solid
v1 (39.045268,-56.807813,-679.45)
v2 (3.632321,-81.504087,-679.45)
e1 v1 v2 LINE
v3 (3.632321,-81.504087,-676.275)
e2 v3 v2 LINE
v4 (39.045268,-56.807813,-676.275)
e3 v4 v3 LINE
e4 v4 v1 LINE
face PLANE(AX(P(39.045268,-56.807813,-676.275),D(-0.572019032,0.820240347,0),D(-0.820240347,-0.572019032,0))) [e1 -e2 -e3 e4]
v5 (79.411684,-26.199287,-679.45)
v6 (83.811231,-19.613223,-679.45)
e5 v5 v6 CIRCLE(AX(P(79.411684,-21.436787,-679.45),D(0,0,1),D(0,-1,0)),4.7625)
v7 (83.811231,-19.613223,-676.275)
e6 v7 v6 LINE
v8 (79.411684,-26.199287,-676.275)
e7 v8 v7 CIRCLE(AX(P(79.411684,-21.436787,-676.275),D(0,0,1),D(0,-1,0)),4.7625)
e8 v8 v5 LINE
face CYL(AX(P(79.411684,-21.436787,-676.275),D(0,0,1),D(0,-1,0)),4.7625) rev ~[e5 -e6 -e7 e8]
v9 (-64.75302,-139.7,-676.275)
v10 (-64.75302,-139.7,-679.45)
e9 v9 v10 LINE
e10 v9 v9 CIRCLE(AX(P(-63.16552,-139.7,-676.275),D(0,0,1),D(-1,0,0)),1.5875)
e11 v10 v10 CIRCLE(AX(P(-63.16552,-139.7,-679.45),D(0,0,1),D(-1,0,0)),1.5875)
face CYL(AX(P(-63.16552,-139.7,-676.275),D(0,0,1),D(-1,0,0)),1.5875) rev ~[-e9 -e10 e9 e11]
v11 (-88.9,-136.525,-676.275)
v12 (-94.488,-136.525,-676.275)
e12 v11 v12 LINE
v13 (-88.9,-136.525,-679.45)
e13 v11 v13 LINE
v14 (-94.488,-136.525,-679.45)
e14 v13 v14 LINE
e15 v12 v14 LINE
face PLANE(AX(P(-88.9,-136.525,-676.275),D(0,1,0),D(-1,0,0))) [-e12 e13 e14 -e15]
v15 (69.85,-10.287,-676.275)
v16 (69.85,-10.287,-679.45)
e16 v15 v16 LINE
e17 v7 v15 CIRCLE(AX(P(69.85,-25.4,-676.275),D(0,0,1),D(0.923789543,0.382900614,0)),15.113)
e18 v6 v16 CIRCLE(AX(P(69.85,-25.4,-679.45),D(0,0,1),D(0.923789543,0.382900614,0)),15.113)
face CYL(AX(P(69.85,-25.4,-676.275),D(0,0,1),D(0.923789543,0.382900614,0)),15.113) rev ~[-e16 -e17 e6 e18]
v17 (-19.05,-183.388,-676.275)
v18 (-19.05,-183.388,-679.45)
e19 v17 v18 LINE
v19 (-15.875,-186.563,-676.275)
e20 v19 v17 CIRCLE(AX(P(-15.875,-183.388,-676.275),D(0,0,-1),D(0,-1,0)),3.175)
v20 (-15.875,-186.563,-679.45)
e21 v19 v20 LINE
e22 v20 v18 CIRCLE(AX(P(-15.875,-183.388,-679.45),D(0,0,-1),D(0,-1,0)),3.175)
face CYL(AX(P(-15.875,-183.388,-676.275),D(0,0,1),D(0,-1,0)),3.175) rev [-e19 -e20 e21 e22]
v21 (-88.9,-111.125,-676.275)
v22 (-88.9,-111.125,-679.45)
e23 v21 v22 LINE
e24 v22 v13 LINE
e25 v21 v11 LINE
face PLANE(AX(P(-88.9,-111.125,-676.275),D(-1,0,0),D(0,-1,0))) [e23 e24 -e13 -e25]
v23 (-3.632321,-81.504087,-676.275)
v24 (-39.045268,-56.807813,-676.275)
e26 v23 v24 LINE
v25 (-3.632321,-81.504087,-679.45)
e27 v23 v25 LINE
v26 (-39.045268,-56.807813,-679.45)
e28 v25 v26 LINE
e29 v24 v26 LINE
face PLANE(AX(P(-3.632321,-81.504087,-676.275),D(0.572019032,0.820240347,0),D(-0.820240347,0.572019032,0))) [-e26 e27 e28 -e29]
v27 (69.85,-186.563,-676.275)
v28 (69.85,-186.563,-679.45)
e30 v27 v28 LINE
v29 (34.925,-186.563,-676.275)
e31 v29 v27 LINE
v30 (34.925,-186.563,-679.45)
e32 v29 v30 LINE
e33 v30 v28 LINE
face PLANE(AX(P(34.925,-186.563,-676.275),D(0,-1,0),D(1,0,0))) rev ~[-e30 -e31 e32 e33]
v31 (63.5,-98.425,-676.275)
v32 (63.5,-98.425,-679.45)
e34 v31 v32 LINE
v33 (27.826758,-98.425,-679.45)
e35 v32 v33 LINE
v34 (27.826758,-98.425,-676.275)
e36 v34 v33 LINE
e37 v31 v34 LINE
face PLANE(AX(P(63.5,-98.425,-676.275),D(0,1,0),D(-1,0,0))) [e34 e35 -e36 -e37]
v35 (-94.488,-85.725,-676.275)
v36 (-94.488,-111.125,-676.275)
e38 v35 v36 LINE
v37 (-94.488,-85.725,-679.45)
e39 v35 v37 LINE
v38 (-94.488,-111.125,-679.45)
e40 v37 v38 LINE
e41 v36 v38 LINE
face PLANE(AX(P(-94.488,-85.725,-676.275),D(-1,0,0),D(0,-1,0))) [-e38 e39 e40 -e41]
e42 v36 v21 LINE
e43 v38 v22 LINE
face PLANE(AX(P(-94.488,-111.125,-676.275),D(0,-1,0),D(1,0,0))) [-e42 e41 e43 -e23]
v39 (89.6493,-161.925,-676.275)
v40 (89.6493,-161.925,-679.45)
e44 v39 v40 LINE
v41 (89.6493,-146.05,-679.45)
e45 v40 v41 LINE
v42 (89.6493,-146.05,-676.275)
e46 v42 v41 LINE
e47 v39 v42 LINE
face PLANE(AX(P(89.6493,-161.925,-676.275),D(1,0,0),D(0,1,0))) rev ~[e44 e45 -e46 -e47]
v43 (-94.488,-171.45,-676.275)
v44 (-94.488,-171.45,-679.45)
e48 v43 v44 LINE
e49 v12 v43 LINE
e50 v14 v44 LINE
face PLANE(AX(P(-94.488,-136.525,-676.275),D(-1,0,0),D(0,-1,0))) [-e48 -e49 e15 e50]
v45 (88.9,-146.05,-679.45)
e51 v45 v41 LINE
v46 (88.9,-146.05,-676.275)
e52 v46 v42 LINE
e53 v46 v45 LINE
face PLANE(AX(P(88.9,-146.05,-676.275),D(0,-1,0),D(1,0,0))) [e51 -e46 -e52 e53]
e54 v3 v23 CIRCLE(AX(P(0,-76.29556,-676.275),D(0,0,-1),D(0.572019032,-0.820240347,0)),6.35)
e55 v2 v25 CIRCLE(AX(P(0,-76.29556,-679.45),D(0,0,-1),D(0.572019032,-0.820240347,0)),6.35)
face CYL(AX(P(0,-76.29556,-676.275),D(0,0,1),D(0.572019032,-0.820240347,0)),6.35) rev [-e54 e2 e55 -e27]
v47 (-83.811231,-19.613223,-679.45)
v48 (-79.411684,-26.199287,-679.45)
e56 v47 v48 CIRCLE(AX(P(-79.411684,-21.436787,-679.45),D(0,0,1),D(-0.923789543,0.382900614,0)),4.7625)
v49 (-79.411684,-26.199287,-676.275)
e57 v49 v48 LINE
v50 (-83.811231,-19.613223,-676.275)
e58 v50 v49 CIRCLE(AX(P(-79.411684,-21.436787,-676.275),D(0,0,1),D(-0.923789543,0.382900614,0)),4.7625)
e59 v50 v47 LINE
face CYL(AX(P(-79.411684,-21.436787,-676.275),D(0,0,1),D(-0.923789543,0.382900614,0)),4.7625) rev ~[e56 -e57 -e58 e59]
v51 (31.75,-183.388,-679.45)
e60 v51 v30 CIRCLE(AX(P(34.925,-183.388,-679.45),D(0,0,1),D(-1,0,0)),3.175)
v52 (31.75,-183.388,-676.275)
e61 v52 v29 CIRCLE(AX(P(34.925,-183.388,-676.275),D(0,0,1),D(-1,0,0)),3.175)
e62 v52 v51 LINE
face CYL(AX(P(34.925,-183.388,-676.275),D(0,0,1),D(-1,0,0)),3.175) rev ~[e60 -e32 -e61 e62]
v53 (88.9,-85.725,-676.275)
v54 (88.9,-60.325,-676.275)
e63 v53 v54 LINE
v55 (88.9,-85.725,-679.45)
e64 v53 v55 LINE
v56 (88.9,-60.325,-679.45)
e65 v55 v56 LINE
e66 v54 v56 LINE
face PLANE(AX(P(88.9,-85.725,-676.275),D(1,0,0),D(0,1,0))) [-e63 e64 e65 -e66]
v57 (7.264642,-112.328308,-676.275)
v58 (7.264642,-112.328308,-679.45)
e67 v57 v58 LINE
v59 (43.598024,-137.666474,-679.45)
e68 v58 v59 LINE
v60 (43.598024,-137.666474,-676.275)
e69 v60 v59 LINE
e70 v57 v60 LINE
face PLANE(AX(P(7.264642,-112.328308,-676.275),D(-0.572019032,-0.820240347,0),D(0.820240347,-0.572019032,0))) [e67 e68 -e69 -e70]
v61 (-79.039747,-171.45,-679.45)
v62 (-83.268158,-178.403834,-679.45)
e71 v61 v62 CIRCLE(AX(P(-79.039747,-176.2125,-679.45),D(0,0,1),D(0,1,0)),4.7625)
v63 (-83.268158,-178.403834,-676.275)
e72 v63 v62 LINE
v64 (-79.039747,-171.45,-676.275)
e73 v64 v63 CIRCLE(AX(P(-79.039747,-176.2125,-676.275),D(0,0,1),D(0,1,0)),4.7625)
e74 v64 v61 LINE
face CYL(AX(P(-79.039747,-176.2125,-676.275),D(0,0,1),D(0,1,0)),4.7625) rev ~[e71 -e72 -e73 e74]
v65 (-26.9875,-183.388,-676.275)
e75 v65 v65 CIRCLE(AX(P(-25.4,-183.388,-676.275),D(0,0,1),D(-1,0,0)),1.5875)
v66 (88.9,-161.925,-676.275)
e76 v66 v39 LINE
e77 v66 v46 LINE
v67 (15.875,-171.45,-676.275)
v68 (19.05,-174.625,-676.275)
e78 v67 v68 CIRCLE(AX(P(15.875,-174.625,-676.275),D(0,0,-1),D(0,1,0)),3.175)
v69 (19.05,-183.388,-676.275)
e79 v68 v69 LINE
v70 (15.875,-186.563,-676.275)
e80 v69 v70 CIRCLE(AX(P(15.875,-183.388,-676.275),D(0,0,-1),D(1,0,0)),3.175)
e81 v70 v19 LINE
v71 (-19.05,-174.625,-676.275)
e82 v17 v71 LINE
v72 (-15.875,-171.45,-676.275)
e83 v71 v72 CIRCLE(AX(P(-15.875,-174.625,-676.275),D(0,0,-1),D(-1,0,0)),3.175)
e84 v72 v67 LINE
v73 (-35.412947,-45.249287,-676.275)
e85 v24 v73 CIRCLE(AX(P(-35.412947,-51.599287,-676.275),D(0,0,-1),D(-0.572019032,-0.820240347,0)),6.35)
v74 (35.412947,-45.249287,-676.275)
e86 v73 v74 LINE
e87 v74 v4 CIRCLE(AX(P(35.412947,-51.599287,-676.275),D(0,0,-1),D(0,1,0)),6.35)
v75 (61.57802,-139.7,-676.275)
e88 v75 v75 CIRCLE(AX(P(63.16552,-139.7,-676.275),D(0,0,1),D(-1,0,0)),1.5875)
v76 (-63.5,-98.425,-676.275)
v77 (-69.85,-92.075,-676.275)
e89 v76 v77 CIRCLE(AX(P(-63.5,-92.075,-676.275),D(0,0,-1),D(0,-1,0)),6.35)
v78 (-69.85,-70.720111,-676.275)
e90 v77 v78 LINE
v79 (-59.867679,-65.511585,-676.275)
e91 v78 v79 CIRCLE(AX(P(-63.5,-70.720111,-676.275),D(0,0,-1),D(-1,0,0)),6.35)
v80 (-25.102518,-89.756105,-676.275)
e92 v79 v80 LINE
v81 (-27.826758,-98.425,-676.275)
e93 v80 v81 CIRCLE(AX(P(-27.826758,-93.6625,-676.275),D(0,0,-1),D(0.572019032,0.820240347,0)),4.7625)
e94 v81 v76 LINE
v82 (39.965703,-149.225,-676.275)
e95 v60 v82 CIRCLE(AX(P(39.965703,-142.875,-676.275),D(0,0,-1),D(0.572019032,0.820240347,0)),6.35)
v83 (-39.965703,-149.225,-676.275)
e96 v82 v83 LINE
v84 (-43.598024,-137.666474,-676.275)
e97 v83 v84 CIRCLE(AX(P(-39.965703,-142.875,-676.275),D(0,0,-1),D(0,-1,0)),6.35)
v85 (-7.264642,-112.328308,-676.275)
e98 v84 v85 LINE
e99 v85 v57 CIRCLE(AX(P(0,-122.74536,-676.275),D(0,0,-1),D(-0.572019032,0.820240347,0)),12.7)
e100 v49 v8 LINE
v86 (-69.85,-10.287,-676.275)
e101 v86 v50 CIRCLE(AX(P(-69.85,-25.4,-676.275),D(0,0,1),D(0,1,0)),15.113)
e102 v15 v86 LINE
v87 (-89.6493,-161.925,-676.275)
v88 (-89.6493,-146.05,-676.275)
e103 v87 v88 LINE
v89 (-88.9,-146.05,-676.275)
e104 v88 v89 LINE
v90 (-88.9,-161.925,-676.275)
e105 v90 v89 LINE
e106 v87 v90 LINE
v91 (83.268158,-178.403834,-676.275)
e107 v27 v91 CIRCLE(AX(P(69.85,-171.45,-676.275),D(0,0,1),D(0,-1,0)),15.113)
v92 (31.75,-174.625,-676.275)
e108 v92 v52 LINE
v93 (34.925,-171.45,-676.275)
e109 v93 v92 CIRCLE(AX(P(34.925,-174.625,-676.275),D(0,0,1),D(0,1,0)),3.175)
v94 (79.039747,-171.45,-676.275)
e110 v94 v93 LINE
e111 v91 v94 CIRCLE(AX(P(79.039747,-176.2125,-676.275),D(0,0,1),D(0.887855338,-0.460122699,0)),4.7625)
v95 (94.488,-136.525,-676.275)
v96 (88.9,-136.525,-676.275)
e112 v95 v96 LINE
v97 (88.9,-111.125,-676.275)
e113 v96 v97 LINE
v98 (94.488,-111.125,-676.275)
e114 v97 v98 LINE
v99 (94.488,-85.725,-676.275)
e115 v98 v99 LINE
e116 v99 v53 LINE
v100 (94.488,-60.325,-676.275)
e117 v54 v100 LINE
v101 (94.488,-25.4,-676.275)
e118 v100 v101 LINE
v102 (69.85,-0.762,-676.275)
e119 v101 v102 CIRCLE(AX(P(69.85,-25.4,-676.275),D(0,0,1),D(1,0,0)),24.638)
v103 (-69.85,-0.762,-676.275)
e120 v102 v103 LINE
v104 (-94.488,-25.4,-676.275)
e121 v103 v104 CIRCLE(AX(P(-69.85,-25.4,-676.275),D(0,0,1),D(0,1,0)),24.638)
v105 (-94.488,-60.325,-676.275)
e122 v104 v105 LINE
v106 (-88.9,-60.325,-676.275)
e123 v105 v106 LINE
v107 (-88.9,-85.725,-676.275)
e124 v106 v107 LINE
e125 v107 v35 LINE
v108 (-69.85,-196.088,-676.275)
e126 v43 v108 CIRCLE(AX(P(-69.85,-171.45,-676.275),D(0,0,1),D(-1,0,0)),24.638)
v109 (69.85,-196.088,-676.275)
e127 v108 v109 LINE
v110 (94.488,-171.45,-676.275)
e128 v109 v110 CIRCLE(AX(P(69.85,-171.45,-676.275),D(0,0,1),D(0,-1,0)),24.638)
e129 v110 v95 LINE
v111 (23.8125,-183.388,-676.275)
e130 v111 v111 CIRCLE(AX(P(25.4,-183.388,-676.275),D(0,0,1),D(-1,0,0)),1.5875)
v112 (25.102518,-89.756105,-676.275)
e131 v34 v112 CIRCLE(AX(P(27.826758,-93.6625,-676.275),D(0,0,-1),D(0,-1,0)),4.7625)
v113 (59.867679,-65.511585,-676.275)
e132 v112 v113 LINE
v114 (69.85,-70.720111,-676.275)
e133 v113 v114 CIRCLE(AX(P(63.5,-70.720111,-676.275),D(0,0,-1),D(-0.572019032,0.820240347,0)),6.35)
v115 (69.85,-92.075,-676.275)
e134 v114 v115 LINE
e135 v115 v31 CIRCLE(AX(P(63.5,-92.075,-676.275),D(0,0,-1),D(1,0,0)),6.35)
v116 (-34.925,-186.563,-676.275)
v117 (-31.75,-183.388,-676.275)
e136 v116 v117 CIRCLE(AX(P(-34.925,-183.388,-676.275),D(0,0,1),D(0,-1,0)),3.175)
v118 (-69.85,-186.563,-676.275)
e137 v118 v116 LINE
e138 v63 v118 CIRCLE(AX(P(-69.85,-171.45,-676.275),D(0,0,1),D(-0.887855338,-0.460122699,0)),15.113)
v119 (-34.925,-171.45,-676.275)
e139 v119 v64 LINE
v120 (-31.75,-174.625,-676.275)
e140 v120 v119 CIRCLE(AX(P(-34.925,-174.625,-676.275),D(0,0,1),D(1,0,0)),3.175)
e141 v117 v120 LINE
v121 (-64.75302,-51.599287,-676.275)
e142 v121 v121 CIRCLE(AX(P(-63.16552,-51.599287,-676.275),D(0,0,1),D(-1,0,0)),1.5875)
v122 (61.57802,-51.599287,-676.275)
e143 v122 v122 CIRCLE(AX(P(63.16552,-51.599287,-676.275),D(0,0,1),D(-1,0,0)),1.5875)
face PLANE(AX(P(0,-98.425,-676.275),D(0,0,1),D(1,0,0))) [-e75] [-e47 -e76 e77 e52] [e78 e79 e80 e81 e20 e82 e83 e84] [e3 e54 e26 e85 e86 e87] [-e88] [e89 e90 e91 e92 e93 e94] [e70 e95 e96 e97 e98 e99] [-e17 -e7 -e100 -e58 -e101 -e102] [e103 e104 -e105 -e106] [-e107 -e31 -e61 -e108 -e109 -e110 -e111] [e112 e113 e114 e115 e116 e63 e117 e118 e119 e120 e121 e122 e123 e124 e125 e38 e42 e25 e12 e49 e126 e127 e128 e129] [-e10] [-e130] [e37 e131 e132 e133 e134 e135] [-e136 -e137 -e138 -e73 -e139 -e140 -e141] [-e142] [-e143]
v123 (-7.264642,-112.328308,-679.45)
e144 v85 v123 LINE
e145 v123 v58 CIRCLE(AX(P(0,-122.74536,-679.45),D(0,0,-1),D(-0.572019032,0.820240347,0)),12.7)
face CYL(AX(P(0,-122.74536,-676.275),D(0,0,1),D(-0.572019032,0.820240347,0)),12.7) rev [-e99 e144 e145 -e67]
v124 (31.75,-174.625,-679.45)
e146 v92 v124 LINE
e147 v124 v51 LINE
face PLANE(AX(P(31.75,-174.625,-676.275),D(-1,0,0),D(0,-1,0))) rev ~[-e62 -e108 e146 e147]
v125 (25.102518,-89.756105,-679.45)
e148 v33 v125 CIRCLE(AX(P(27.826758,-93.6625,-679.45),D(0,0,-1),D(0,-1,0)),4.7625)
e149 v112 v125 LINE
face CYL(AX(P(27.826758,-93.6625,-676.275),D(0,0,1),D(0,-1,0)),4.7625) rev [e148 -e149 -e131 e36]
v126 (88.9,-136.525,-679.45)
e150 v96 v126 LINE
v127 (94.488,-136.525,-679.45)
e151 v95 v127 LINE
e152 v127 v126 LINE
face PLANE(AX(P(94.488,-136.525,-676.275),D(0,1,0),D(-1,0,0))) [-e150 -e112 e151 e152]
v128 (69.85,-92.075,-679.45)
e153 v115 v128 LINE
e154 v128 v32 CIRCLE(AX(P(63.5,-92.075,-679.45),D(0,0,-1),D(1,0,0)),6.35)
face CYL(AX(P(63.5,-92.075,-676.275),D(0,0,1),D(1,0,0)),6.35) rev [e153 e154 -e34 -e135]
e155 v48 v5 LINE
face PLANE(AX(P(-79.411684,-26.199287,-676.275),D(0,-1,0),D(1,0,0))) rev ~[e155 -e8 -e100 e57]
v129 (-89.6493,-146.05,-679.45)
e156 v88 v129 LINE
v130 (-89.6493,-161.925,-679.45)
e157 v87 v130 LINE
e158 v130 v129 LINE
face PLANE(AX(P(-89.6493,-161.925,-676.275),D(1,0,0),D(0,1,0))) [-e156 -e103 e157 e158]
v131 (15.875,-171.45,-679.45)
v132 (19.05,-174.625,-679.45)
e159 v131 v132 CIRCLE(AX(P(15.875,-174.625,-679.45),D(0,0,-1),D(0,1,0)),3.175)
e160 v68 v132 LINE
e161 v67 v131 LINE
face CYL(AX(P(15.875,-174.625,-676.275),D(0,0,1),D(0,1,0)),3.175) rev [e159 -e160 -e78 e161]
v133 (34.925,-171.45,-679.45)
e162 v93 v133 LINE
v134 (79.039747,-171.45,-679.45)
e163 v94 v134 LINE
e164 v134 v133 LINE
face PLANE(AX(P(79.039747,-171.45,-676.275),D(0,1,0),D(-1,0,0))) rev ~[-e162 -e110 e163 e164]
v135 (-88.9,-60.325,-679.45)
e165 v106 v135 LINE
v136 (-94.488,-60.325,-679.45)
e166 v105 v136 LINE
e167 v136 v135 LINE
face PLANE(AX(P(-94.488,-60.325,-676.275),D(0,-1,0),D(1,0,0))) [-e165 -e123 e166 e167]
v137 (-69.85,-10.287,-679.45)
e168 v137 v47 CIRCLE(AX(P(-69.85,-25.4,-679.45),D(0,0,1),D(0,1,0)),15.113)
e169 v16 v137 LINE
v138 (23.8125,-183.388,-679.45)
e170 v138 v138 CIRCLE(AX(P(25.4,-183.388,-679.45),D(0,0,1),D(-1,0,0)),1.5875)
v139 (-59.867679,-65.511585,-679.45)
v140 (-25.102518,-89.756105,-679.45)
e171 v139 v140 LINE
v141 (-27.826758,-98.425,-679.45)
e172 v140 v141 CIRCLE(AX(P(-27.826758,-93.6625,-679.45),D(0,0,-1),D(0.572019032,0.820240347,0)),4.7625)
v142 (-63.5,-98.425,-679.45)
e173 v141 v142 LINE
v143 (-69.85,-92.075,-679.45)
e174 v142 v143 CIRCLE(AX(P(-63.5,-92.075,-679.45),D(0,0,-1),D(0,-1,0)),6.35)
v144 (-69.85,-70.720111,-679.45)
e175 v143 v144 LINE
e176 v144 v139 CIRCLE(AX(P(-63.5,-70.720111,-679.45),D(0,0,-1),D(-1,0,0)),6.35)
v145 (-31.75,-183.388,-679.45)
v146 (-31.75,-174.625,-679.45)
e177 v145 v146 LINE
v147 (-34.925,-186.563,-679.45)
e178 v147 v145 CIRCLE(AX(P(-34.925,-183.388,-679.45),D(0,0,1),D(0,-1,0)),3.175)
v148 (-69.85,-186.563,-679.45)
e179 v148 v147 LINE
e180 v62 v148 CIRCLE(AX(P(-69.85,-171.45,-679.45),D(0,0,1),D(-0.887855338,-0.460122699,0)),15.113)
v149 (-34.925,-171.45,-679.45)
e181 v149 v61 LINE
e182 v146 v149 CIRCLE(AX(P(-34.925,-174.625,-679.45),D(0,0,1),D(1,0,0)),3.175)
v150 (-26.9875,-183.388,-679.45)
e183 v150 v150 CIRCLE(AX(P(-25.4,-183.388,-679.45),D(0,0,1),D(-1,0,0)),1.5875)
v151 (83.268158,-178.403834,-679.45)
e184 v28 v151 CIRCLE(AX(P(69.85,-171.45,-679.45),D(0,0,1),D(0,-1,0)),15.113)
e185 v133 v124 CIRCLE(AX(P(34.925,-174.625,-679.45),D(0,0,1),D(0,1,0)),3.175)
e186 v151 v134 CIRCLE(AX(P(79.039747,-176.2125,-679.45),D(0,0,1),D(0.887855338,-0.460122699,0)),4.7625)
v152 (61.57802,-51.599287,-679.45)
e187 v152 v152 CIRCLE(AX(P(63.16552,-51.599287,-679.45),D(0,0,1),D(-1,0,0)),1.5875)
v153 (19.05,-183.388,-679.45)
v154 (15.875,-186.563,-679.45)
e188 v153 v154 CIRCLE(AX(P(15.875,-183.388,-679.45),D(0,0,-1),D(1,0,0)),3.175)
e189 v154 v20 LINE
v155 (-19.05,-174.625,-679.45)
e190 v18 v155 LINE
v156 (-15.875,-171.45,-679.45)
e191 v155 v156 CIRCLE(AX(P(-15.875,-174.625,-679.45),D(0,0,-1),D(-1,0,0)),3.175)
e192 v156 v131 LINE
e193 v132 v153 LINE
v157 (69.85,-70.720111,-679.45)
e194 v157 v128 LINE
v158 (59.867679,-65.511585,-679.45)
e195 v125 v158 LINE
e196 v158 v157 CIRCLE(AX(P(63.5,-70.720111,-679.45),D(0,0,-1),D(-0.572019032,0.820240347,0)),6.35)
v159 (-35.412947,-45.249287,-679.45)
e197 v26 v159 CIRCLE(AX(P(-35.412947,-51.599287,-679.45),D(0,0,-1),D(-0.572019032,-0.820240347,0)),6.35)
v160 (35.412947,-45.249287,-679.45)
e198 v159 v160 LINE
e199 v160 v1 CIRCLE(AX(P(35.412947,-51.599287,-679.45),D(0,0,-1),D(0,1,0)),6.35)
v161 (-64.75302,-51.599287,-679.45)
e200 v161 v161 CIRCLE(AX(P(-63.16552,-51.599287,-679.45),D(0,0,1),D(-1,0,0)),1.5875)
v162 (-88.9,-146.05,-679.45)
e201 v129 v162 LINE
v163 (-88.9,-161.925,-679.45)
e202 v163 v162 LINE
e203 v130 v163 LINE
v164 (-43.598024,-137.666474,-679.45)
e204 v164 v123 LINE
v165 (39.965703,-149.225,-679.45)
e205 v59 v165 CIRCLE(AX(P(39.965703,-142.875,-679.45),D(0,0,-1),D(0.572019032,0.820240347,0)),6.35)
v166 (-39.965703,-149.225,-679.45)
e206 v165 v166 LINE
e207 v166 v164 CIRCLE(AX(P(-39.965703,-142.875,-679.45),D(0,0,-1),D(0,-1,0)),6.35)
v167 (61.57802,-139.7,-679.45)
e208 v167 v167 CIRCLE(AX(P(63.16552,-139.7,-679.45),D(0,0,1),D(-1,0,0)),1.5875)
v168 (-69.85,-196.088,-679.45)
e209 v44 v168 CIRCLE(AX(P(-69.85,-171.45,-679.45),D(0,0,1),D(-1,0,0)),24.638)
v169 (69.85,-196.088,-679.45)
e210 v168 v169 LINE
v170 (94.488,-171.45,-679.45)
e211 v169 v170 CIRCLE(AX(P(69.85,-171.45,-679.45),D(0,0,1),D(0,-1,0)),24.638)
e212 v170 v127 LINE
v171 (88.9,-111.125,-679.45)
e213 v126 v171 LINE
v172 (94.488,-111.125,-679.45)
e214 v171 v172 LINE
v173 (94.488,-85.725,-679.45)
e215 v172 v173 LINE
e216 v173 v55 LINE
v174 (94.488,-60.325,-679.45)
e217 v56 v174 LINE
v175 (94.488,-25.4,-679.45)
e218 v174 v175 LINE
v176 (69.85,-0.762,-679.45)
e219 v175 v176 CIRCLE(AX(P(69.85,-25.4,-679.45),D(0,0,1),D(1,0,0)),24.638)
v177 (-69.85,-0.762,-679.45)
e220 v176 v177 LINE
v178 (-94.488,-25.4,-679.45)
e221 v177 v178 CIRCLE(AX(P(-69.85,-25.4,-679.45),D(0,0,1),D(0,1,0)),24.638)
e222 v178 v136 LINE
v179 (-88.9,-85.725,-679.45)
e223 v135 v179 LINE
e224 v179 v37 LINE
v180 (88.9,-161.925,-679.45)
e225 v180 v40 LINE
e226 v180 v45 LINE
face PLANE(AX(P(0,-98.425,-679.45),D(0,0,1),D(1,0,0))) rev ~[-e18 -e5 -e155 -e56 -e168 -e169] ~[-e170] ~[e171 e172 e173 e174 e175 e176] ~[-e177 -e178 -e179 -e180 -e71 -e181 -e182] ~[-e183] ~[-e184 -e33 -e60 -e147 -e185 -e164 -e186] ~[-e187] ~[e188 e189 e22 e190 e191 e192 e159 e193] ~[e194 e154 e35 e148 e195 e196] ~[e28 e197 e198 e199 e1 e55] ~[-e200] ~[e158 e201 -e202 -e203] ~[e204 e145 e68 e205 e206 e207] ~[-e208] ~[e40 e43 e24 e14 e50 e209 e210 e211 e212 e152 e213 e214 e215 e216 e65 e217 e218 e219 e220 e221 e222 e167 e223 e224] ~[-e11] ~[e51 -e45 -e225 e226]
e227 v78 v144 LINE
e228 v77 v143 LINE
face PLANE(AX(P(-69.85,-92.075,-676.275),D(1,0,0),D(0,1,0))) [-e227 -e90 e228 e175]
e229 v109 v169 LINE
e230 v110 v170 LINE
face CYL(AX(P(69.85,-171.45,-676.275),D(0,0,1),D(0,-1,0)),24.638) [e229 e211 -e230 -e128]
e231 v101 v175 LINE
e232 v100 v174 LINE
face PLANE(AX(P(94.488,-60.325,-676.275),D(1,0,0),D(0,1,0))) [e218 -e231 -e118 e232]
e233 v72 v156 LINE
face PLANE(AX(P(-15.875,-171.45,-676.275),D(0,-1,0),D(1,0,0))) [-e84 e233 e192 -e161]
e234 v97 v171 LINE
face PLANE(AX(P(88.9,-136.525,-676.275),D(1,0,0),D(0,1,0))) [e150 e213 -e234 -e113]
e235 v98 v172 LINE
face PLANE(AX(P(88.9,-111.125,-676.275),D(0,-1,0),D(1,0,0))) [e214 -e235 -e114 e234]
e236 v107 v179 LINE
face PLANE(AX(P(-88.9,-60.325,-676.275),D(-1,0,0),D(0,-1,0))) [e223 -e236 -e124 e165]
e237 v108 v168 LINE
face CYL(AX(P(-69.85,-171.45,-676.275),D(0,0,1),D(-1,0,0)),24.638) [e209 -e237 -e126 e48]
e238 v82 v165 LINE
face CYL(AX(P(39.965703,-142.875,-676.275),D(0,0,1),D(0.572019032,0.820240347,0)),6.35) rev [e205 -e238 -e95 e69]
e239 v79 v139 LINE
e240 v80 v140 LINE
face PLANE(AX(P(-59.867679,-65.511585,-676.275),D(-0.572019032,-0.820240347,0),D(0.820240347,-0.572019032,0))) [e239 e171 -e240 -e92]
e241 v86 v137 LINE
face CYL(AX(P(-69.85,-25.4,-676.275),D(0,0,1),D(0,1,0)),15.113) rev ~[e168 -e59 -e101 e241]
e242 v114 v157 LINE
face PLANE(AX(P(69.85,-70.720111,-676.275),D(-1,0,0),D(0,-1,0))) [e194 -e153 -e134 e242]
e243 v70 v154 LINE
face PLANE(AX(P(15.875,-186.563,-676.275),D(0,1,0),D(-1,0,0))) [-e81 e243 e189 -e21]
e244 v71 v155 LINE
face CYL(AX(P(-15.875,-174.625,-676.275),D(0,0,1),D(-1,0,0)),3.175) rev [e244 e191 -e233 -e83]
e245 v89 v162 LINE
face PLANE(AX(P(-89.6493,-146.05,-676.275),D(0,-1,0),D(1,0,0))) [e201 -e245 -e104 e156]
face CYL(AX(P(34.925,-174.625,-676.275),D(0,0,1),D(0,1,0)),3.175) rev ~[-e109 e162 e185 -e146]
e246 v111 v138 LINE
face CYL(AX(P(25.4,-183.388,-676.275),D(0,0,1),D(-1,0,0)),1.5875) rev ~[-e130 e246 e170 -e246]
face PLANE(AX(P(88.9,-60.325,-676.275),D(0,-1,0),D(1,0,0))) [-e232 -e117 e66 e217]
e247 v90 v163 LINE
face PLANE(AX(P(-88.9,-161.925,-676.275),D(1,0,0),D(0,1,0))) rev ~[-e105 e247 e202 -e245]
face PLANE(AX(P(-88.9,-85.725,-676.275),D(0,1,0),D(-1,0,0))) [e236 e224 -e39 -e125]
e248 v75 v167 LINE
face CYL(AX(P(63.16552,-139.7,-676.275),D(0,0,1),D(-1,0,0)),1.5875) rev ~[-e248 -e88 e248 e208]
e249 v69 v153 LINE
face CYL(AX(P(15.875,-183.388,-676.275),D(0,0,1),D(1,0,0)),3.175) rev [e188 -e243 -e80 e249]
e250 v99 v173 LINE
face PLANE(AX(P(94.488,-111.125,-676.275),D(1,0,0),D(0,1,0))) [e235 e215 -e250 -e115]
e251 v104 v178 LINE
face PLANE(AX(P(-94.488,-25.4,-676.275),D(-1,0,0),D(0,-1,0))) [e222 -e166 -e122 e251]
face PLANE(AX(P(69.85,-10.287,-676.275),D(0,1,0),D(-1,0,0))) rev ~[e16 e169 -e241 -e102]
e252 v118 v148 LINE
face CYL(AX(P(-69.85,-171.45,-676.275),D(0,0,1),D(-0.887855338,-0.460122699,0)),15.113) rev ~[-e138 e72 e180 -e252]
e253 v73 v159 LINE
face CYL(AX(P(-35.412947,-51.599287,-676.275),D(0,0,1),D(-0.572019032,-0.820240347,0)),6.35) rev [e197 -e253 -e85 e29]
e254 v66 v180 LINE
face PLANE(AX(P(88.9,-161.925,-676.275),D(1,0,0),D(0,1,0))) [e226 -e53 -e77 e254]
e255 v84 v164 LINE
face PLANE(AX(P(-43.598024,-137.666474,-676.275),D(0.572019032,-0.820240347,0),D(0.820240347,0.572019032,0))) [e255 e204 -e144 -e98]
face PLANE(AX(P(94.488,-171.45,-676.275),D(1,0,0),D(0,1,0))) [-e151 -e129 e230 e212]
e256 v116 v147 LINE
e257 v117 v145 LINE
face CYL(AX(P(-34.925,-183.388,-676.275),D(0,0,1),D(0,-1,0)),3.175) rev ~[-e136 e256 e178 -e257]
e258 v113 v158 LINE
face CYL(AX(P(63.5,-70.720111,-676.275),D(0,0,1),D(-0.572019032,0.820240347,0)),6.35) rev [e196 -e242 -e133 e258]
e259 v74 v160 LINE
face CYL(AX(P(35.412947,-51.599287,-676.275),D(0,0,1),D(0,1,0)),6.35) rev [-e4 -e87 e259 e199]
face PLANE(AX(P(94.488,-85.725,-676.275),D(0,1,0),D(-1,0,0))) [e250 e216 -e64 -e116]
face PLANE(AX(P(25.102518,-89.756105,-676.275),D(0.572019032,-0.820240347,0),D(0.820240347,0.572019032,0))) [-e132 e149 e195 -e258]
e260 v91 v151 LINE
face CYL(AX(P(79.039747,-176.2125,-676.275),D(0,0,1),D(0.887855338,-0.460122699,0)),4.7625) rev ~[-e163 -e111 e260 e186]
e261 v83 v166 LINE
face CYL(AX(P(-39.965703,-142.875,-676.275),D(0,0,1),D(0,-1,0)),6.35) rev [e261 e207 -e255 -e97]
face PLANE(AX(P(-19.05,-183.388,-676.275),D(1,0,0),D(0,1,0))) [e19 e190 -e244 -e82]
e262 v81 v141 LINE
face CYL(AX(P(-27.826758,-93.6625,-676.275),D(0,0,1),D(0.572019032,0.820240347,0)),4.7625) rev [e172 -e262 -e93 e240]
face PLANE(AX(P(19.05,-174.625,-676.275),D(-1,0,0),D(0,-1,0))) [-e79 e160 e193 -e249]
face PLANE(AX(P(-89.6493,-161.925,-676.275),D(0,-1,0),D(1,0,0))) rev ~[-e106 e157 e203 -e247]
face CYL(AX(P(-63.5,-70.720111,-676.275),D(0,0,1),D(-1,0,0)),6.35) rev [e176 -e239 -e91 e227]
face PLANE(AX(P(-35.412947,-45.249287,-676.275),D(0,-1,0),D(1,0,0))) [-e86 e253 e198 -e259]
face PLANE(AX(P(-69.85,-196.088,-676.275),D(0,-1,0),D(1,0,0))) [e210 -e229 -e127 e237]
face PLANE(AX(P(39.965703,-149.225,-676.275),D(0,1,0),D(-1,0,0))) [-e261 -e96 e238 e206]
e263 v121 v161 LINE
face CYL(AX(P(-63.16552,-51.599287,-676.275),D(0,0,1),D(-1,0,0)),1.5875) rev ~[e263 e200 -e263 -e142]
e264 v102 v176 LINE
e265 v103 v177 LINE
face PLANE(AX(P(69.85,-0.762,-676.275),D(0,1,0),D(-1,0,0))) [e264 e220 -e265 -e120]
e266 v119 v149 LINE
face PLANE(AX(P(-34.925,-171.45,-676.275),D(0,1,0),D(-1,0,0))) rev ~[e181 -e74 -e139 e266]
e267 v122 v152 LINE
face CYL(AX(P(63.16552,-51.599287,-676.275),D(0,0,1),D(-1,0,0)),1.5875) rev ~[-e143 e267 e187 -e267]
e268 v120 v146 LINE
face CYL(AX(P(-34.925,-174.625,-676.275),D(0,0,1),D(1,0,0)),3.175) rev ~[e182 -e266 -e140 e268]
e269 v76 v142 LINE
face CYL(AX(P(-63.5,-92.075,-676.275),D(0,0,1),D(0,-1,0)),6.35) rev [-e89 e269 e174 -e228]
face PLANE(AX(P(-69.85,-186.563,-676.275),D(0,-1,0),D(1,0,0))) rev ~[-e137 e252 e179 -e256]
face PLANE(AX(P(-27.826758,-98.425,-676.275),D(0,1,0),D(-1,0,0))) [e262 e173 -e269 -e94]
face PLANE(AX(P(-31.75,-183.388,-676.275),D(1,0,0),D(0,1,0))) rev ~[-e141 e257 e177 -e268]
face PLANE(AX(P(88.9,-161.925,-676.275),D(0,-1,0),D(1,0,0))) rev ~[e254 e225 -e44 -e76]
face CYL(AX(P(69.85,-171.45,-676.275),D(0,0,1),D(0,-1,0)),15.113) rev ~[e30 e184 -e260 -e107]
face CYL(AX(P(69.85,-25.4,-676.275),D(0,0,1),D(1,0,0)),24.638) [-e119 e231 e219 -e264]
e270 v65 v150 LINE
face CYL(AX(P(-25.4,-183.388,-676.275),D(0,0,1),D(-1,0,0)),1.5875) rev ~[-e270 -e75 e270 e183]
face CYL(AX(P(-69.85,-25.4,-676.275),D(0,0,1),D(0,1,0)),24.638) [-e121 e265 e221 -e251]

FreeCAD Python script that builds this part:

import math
import FreeCAD as App
import Part
import Sketcher
from FreeCAD import Vector
Q = App.Units.Quantity


def add_polygon(sketch, points):
    """Adds a closed chain of lines whose ends are joined by coincident constraints."""
    first, n = sketch.GeometryCount, len(points)
    for a, b in zip(points, points[1:] + points[:1]):
        sketch.addGeometry(Part.LineSegment(App.Vector(*a, 0), App.Vector(*b, 0)), False)
    for i in range(n):
        sketch.addConstraint(Sketcher.Constraint("Coincident", first + i, 2, first + (i + 1) % n, 1))

doc = App.newDocument("Part")
body = doc.addObject("PartDesign::Body", "Body")

# Sketch on XY plane
sketch1 = body.newObject("Sketcher::SketchObject", "Sketch")
sketch1.AttachmentSupport = (doc.getObject("XY_Plane"), [""])
sketch1.MapMode = "FlatFace"
sketch1.AttachmentOffset = App.Placement(Vector(0, 0, -26.625 * 25.4), App.Rotation())
sketch1.addGeometry(Part.LineSegment(Vector(94.5, -171.4, 0), Vector(94.5, -136.5, 0)), False)  # 0
sketch1.addGeometry(Part.LineSegment(Vector(94.5, -136.5, 0), Vector(88.9, -136.5, 0)), False)  # 1
sketch1.addGeometry(Part.LineSegment(Vector(88.9, -136.5, 0), Vector(88.9, -111.1, 0)), False)  # 2
sketch1.addGeometry(Part.LineSegment(Vector(88.9, -111.1, 0), Vector(94.5, -111.1, 0)), False)  # 3
sketch1.addGeometry(Part.LineSegment(Vector(94.5, -111.1, 0), Vector(94.5, -85.7, 0)), False)  # 4
sketch1.addGeometry(Part.LineSegment(Vector(94.5, -85.7, 0), Vector(88.9, -85.7, 0)), False)  # 5
sketch1.addGeometry(Part.LineSegment(Vector(88.9, -85.7, 0), Vector(88.9, -60.3, 0)), False)  # 6
sketch1.addGeometry(Part.LineSegment(Vector(88.9, -60.3, 0), Vector(94.5, -60.3, 0)), False)  # 7
sketch1.addGeometry(Part.LineSegment(Vector(94.5, -60.3, 0), Vector(94.5, -25.4, 0)), False)  # 8
sketch1.addGeometry(Part.ArcOfCircle(Part.Circle(Vector(69.8, -25.4, 0), Vector(0, 0, 1), 24.6), math.radians(0), math.radians(90)), False)  # 9
sketch1.addGeometry(Part.LineSegment(Vector(69.8, -0.8, 0), Vector(-69.8, -0.8, 0)), False)  # 10
sketch1.addGeometry(Part.ArcOfCircle(Part.Circle(Vector(-69.8, -25.4, 0), Vector(0, 0, 1), 24.6), math.radians(90), math.radians(180)), False)  # 11
sketch1.addGeometry(Part.LineSegment(Vector(-94.5, -25.4, 0), Vector(-94.5, -60.3, 0)), False)  # 12
sketch1.addGeometry(Part.LineSegment(Vector(-94.5, -60.3, 0), Vector(-88.9, -60.3, 0)), False)  # 13
sketch1.addGeometry(Part.LineSegment(Vector(-88.9, -60.3, 0), Vector(-88.9, -85.7, 0)), False)  # 14
sketch1.addGeometry(Part.LineSegment(Vector(-88.9, -85.7, 0), Vector(-94.5, -85.7, 0)), False)  # 15
sketch1.addGeometry(Part.LineSegment(Vector(-94.5, -85.7, 0), Vector(-94.5, -111.1, 0)), False)  # 16
sketch1.addGeometry(Part.LineSegment(Vector(-94.5, -111.1, 0), Vector(-88.9, -111.1, 0)), False)  # 17
sketch1.addGeometry(Part.LineSegment(Vector(-88.9, -111.1, 0), Vector(-88.9, -136.5, 0)), False)  # 18
sketch1.addGeometry(Part.LineSegment(Vector(-88.9, -136.5, 0), Vector(-94.5, -136.5, 0)), False)  # 19
sketch1.addGeometry(Part.LineSegment(Vector(-94.5, -136.5, 0), Vector(-94.5, -171.4, 0)), False)  # 20
sketch1.addGeometry(Part.ArcOfCircle(Part.Circle(Vector(-69.8, -171.4, 0), Vector(0, 0, 1), 24.6), math.radians(180), math.radians(270)), False)  # 21
sketch1.addGeometry(Part.LineSegment(Vector(-69.8, -196.1, 0), Vector(69.8, -196.1, 0)), False)  # 22
sketch1.addGeometry(Part.ArcOfCircle(Part.Circle(Vector(69.8, -171.4, 0), Vector(0, 0, 1), 24.6), math.radians(-90), math.radians(0)), False)  # 23
sketch1.addGeometry(Part.LineSegment(Vector(-34.9, -186.6, 0), Vector(-69.8, -186.6, 0)), False)  # 24
sketch1.addGeometry(Part.ArcOfCircle(Part.Circle(Vector(-69.8, -171.4, 0), Vector(0, 0, 1), 15.1), math.radians(-153), math.radians(-90)), False)  # 25
sketch1.addGeometry(Part.ArcOfCircle(Part.Circle(Vector(-79, -176.2, 0), Vector(0, 0, 1), 4.8), math.radians(90), math.radians(207)), False)  # 26
sketch1.addGeometry(Part.LineSegment(Vector(-79, -171.4, 0), Vector(-34.9, -171.4, 0)), False)  # 27
sketch1.addGeometry(Part.ArcOfCircle(Part.Circle(Vector(-34.9, -174.6, 0), Vector(0, 0, 1), 3.2), math.radians(0), math.radians(90)), False)  # 28
sketch1.addGeometry(Part.LineSegment(Vector(-31.8, -174.6, 0), Vector(-31.8, -183.4, 0)), False)  # 29
sketch1.addGeometry(Part.ArcOfCircle(Part.Circle(Vector(-34.9, -183.4, 0), Vector(0, 0, 1), 3.2), math.radians(-90), math.radians(0)), False)  # 30
add_polygon(sketch1, [(-88.9, -161.9), (-89.6, -161.9), (-89.6, -146.1), (-88.9, -146.1)])  # lines 31-34
sketch1.addGeometry(Part.Circle(Vector(-25.4, -183.4, 0), Vector(0, 0, 1), 1.6), False)  # 35
sketch1.addGeometry(Part.Circle(Vector(-63.2, -139.7, 0), Vector(0, 0, 1), 1.6), False)  # 36
sketch1.addGeometry(Part.ArcOfCircle(Part.Circle(Vector(-15.9, -183.4, 0), Vector(0, 0, 1), 3.2), math.radians(-180), math.radians(-90)), False)  # 37
sketch1.addGeometry(Part.LineSegment(Vector(-19.1, -183.4, 0), Vector(-19.1, -174.6, 0)), False)  # 38
sketch1.addGeometry(Part.ArcOfCircle(Part.Circle(Vector(-15.9, -174.6, 0), Vector(0, 0, 1), 3.2), math.radians(90), math.radians(180)), False)  # 39
sketch1.addGeometry(Part.LineSegment(Vector(-15.9, -171.4, 0), Vector(15.9, -171.4, 0)), False)  # 40
sketch1.addGeometry(Part.ArcOfCircle(Part.Circle(Vector(15.9, -174.6, 0), Vector(0, 0, 1), 3.2), math.radians(0), math.radians(90)), False)  # 41
sketch1.addGeometry(Part.LineSegment(Vector(19.1, -174.6, 0), Vector(19.1, -183.4, 0)), False)  # 42
sketch1.addGeometry(Part.ArcOfCircle(Part.Circle(Vector(15.9, -183.4, 0), Vector(0, 0, 1), 3.2), math.radians(-90), math.radians(0)), False)  # 43
sketch1.addGeometry(Part.LineSegment(Vector(15.9, -186.6, 0), Vector(-15.9, -186.6, 0)), False)  # 44
sketch1.addGeometry(Part.Circle(Vector(25.4, -183.4, 0), Vector(0, 0, 1), 1.6), False)  # 45
sketch1.addGeometry(Part.LineSegment(Vector(31.8, -183.4, 0), Vector(31.8, -174.6, 0)), False)  # 46
sketch1.addGeometry(Part.ArcOfCircle(Part.Circle(Vector(34.9, -174.6, 0), Vector(0, 0, 1), 3.2), math.radians(90), math.radians(180)), False)  # 47
sketch1.addGeometry(Part.LineSegment(Vector(34.9, -171.4, 0), Vector(79, -171.4, 0)), False)  # 48
sketch1.addGeometry(Part.ArcOfCircle(Part.Circle(Vector(79, -176.2, 0), Vector(0, 0, 1), 4.8), math.radians(-27), math.radians(90)), False)  # 49
sketch1.addGeometry(Part.ArcOfCircle(Part.Circle(Vector(69.8, -171.4, 0), Vector(0, 0, 1), 15.1), math.radians(-90), math.radians(-27)), False)  # 50
sketch1.addGeometry(Part.LineSegment(Vector(69.8, -186.6, 0), Vector(34.9, -186.6, 0)), False)  # 51
sketch1.addGeometry(Part.ArcOfCircle(Part.Circle(Vector(34.9, -183.4, 0), Vector(0, 0, 1), 3.2), math.radians(-180), math.radians(-90)), False)  # 52
add_polygon(sketch1, [(89.6, -161.9), (88.9, -161.9), (88.9, -146.1), (89.6, -146.1)])  # lines 53-56
sketch1.addGeometry(Part.ArcOfCircle(Part.Circle(Vector(0, -122.7, 0), Vector(0, 0, 1), 12.7), math.radians(55), math.radians(125)), False)  # 57
sketch1.addGeometry(Part.LineSegment(Vector(7.3, -112.3, 0), Vector(43.6, -137.7, 0)), False)  # 58
sketch1.addGeometry(Part.ArcOfCircle(Part.Circle(Vector(40, -142.9, 0), Vector(0, 0, 1), 6.3), math.radians(-90), math.radians(55)), False)  # 59
sketch1.addGeometry(Part.LineSegment(Vector(40, -149.2, 0), Vector(-40, -149.2, 0)), False)  # 60
sketch1.addGeometry(Part.ArcOfCircle(Part.Circle(Vector(-40, -142.9, 0), Vector(0, 0, 1), 6.3), math.radians(125), math.radians(270)), False)  # 61
sketch1.addGeometry(Part.LineSegment(Vector(-43.6, -137.7, 0), Vector(-7.3, -112.3, 0)), False)  # 62
sketch1.addGeometry(Part.Circle(Vector(63.2, -139.7, 0), Vector(0, 0, 1), 1.6), False)  # 63
sketch1.addGeometry(Part.ArcOfCircle(Part.Circle(Vector(-63.5, -70.7, 0), Vector(0, 0, 1), 6.3), math.radians(55), math.radians(180)), False)  # 64
sketch1.addGeometry(Part.LineSegment(Vector(-59.9, -65.5, 0), Vector(-25.1, -89.8, 0)), False)  # 65
sketch1.addGeometry(Part.ArcOfCircle(Part.Circle(Vector(-27.8, -93.7, 0), Vector(0, 0, 1), 4.8), math.radians(-90), math.radians(55)), False)  # 66
sketch1.addGeometry(Part.LineSegment(Vector(-27.8, -98.4, 0), Vector(-63.5, -98.4, 0)), False)  # 67
sketch1.addGeometry(Part.ArcOfCircle(Part.Circle(Vector(-63.5, -92.1, 0), Vector(0, 0, 1), 6.3), math.radians(180), math.radians(270)), False)  # 68
sketch1.addGeometry(Part.LineSegment(Vector(-69.8, -92.1, 0), Vector(-69.8, -70.7, 0)), False)  # 69
sketch1.addGeometry(Part.Circle(Vector(-63.2, -51.6, 0), Vector(0, 0, 1), 1.6), False)  # 70
sketch1.addGeometry(Part.ArcOfCircle(Part.Circle(Vector(35.4, -51.6, 0), Vector(0, 0, 1), 6.3), math.radians(-55), math.radians(90)), False)  # 71
sketch1.addGeometry(Part.LineSegment(Vector(39, -56.8, 0), Vector(3.6, -81.5, 0)), False)  # 72
sketch1.addGeometry(Part.ArcOfCircle(Part.Circle(Vector(0, -76.3, 0), Vector(0, 0, 1), 6.4), math.radians(-125), math.radians(-55)), False)  # 73
sketch1.addGeometry(Part.LineSegment(Vector(-3.6, -81.5, 0), Vector(-39, -56.8, 0)), False)  # 74
sketch1.addGeometry(Part.ArcOfCircle(Part.Circle(Vector(-35.4, -51.6, 0), Vector(0, 0, 1), 6.3), math.radians(90), math.radians(235)), False)  # 75
sketch1.addGeometry(Part.LineSegment(Vector(-35.4, -45.2, 0), Vector(35.4, -45.2, 0)), False)  # 76
sketch1.addGeometry(Part.ArcOfCircle(Part.Circle(Vector(63.5, -70.7, 0), Vector(0, 0, 1), 6.3), math.radians(0), math.radians(125)), False)  # 77
sketch1.addGeometry(Part.LineSegment(Vector(69.8, -70.7, 0), Vector(69.8, -92.1, 0)), False)  # 78
sketch1.addGeometry(Part.ArcOfCircle(Part.Circle(Vector(63.5, -92.1, 0), Vector(0, 0, 1), 6.3), math.radians(-90), math.radians(0)), False)  # 79
sketch1.addGeometry(Part.LineSegment(Vector(63.5, -98.4, 0), Vector(27.8, -98.4, 0)), False)  # 80
sketch1.addGeometry(Part.ArcOfCircle(Part.Circle(Vector(27.8, -93.7, 0), Vector(0, 0, 1), 4.8), math.radians(125), math.radians(270)), False)  # 81
sketch1.addGeometry(Part.LineSegment(Vector(25.1, -89.8, 0), Vector(59.9, -65.5, 0)), False)  # 82
sketch1.addGeometry(Part.LineSegment(Vector(-69.8, -10.3, 0), Vector(69.8, -10.3, 0)), False)  # 83
sketch1.addGeometry(Part.ArcOfCircle(Part.Circle(Vector(69.8, -25.4, 0), Vector(0, 0, 1), 15.1), math.radians(23), math.radians(90)), False)  # 84
sketch1.addGeometry(Part.ArcOfCircle(Part.Circle(Vector(79.4, -21.4, 0), Vector(0, 0, 1), 4.8), math.radians(-90), math.radians(23)), False)  # 85
sketch1.addGeometry(Part.LineSegment(Vector(79.4, -26.2, 0), Vector(-79.4, -26.2, 0)), False)  # 86
sketch1.addGeometry(Part.ArcOfCircle(Part.Circle(Vector(-79.4, -21.4, 0), Vector(0, 0, 1), 4.8), math.radians(157), math.radians(270)), False)  # 87
sketch1.addGeometry(Part.ArcOfCircle(Part.Circle(Vector(-69.8, -25.4, 0), Vector(0, 0, 1), 15.1), math.radians(90), math.radians(157)), False)  # 88
sketch1.addGeometry(Part.Circle(Vector(63.2, -51.6, 0), Vector(0, 0, 1), 1.6), False)  # 89
sketch1.addConstraint([
    Sketcher.Constraint("Coincident", 0, 2, 1, 1),
    Sketcher.Constraint("Coincident", 1, 2, 2, 1),
    Sketcher.Constraint("Coincident", 2, 2, 3, 1),
    Sketcher.Constraint("Coincident", 3, 2, 4, 1),
    Sketcher.Constraint("Coincident", 4, 2, 5, 1),
    Sketcher.Constraint("Coincident", 5, 2, 6, 1),
    Sketcher.Constraint("Coincident", 6, 2, 7, 1),
    Sketcher.Constraint("Coincident", 7, 2, 8, 1),
    Sketcher.Constraint("Tangent", 8, 2, 9, 1),
    Sketcher.Constraint("Tangent", 9, 2, 10, 1),
    Sketcher.Constraint("Tangent", 10, 2, 11, 1),
    Sketcher.Constraint("Tangent", 11, 2, 12, 1),
    Sketcher.Constraint("Coincident", 12, 2, 13, 1),
    Sketcher.Constraint("Coincident", 13, 2, 14, 1),
    Sketcher.Constraint("Coincident", 14, 2, 15, 1),
    Sketcher.Constraint("Coincident", 15, 2, 16, 1),
    Sketcher.Constraint("Coincident", 16, 2, 17, 1),
    Sketcher.Constraint("Coincident", 17, 2, 18, 1),
    Sketcher.Constraint("Coincident", 18, 2, 19, 1),
    Sketcher.Constraint("Coincident", 19, 2, 20, 1),
    Sketcher.Constraint("Tangent", 20, 2, 21, 1),
    Sketcher.Constraint("Tangent", 21, 2, 22, 1),
    Sketcher.Constraint("Tangent", 22, 2, 23, 1),
    Sketcher.Constraint("Tangent", 23, 2, 0, 1),
    Sketcher.Constraint("Tangent", 24, 2, 25, 2),
    Sketcher.Constraint("Tangent", 25, 1, 26, 2),
    Sketcher.Constraint("Tangent", 26, 1, 27, 1),
    Sketcher.Constraint("Tangent", 27, 2, 28, 2),
    Sketcher.Constraint("Tangent", 28, 1, 29, 1),
    Sketcher.Constraint("Tangent", 29, 2, 30, 2),
    Sketcher.Constraint("Tangent", 30, 1, 24, 1),
    Sketcher.Constraint("Tangent", 37, 1, 38, 1),
    Sketcher.Constraint("Tangent", 38, 2, 39, 2),
    Sketcher.Constraint("Tangent", 39, 1, 40, 1),
    Sketcher.Constraint("Tangent", 40, 2, 41, 2),
    Sketcher.Constraint("Tangent", 41, 1, 42, 1),
    Sketcher.Constraint("Tangent", 42, 2, 43, 2),
    Sketcher.Constraint("Tangent", 43, 1, 44, 1),
    Sketcher.Constraint("Tangent", 44, 2, 37, 2),
    Sketcher.Constraint("Tangent", 46, 2, 47, 2),
    Sketcher.Constraint("Tangent", 47, 1, 48, 1),
    Sketcher.Constraint("Tangent", 48, 2, 49, 2),
    Sketcher.Constraint("Tangent", 49, 1, 50, 2),
    Sketcher.Constraint("Tangent", 50, 1, 51, 1),
    Sketcher.Constraint("Tangent", 51, 2, 52, 2),
    Sketcher.Constraint("Tangent", 52, 1, 46, 1),
    Sketcher.Constraint("Tangent", 57, 1, 58, 1),
    Sketcher.Constraint("Tangent", 58, 2, 59, 2),
    Sketcher.Constraint("Tangent", 59, 1, 60, 1),
    Sketcher.Constraint("Tangent", 60, 2, 61, 2),
    Sketcher.Constraint("Tangent", 61, 1, 62, 1),
    Sketcher.Constraint("Tangent", 62, 2, 57, 2),
    Sketcher.Constraint("Tangent", 64, 1, 65, 1),
    Sketcher.Constraint("Tangent", 65, 2, 66, 2),
    Sketcher.Constraint("Tangent", 66, 1, 67, 1),
    Sketcher.Constraint("Tangent", 67, 2, 68, 2),
    Sketcher.Constraint("Tangent", 68, 1, 69, 1),
    Sketcher.Constraint("Tangent", 69, 2, 64, 2),
    Sketcher.Constraint("Tangent", 71, 1, 72, 1),
    Sketcher.Constraint("Tangent", 72, 2, 73, 2),
    Sketcher.Constraint("Tangent", 73, 1, 74, 1),
    Sketcher.Constraint("Tangent", 74, 2, 75, 2),
    Sketcher.Constraint("Tangent", 75, 1, 76, 1),
    Sketcher.Constraint("Tangent", 76, 2, 71, 2),
    Sketcher.Constraint("Tangent", 77, 1, 78, 1),
    Sketcher.Constraint("Tangent", 78, 2, 79, 2),
    Sketcher.Constraint("Tangent", 79, 1, 80, 1),
    Sketcher.Constraint("Tangent", 80, 2, 81, 2),
    Sketcher.Constraint("Tangent", 81, 1, 82, 1),
    Sketcher.Constraint("Tangent", 82, 2, 77, 2),
    Sketcher.Constraint("Tangent", 83, 2, 84, 2),
    Sketcher.Constraint("Tangent", 84, 1, 85, 2),
    Sketcher.Constraint("Tangent", 85, 1, 86, 1),
    Sketcher.Constraint("Tangent", 86, 2, 87, 2),
    Sketcher.Constraint("Tangent", 87, 1, 88, 2),
    Sketcher.Constraint("Tangent", 88, 1, 83, 1),
    Sketcher.Constraint("Vertical", 0),
    Sketcher.Constraint("Horizontal", 1),
    Sketcher.Constraint("Vertical", 2),
    Sketcher.Constraint("Horizontal", 3),
    Sketcher.Constraint("Vertical", 4),
    Sketcher.Constraint("Horizontal", 5),
    Sketcher.Constraint("Vertical", 6),
    Sketcher.Constraint("Horizontal", 7),
    Sketcher.Constraint("Vertical", 8),
    Sketcher.Constraint("Horizontal", 10),
    Sketcher.Constraint("Vertical", 12),
    Sketcher.Constraint("Horizontal", 13),
    Sketcher.Constraint("Vertical", 14),
    Sketcher.Constraint("Horizontal", 15),
    Sketcher.Constraint("Vertical", 16),
    Sketcher.Constraint("Horizontal", 17),
    Sketcher.Constraint("Vertical", 18),
    Sketcher.Constraint("Horizontal", 19),
    Sketcher.Constraint("Vertical", 20),
    Sketcher.Constraint("Horizontal", 22),
    Sketcher.Constraint("Horizontal", 24),
    Sketcher.Constraint("Horizontal", 27),
    Sketcher.Constraint("Vertical", 29),
    Sketcher.Constraint("Horizontal", 31),
    Sketcher.Constraint("Vertical", 32),
    Sketcher.Constraint("Horizontal", 33),
    Sketcher.Constraint("Vertical", 34),
    Sketcher.Constraint("Vertical", 38),
    Sketcher.Constraint("Horizontal", 40),
    Sketcher.Constraint("Vertical", 42),
    Sketcher.Constraint("Horizontal", 44),
    Sketcher.Constraint("Vertical", 46),
    Sketcher.Constraint("Horizontal", 48),
    Sketcher.Constraint("Horizontal", 51),
    Sketcher.Constraint("Horizontal", 53),
    Sketcher.Constraint("Vertical", 54),
    Sketcher.Constraint("Horizontal", 55),
    Sketcher.Constraint("Vertical", 56),
    Sketcher.Constraint("Horizontal", 60),
    Sketcher.Constraint("Horizontal", 67),
    Sketcher.Constraint("Vertical", 69),
    Sketcher.Constraint("Horizontal", 76),
    Sketcher.Constraint("Vertical", 78),
    Sketcher.Constraint("Horizontal", 80),
    Sketcher.Constraint("Horizontal", 83),
    Sketcher.Constraint("Horizontal", 86),
    Sketcher.Constraint("Coincident", 25, 3, 21, 3),
    Sketcher.Constraint("Coincident", 50, 3, 23, 3),
    Sketcher.Constraint("Coincident", 84, 3, 9, 3),
    Sketcher.Constraint("Coincident", 88, 3, 11, 3),
    Sketcher.Constraint("Equal", 9, 11),
    Sketcher.Constraint("Equal", 11, 21),
    Sketcher.Constraint("Equal", 21, 23),
    Sketcher.Constraint("Equal", 28, 30),
    Sketcher.Constraint("Equal", 35, 36),
    Sketcher.Constraint("Equal", 30, 37),
    Sketcher.Constraint("Equal", 37, 39),
    Sketcher.Constraint("Equal", 39, 41),
    Sketcher.Constraint("Equal", 41, 43),
    Sketcher.Constraint("Equal", 36, 45),
    Sketcher.Constraint("Equal", 43, 47),
    Sketcher.Constraint("Equal", 26, 49),
    Sketcher.Constraint("Equal", 25, 50),
    Sketcher.Constraint("Equal", 47, 52),
    Sketcher.Constraint("Equal", 59, 61),
    Sketcher.Constraint("Equal", 45, 63),
    Sketcher.Constraint("Equal", 61, 64),
    Sketcher.Constraint("Equal", 49, 66),
    Sketcher.Constraint("Equal", 64, 68),
    Sketcher.Constraint("Equal", 63, 70),
    Sketcher.Constraint("Equal", 68, 71),
    Sketcher.Constraint("Equal", 71, 73),
    Sketcher.Constraint("Equal", 73, 75),
    Sketcher.Constraint("Equal", 75, 77),
    Sketcher.Constraint("Equal", 77, 79),
    Sketcher.Constraint("Equal", 66, 81),
    Sketcher.Constraint("Equal", 50, 84),
    Sketcher.Constraint("Equal", 81, 85),
    Sketcher.Constraint("Equal", 85, 87),
    Sketcher.Constraint("Equal", 70, 89),
    Sketcher.Constraint("Symmetric", 35, 3, 45, 3, -2),
    Sketcher.Constraint("Symmetric", 28, 3, 47, 3, -2),
    Sketcher.Constraint("Symmetric", 36, 3, 63, 3, -2),
    Sketcher.Constraint("Symmetric", 64, 3, 77, 3, -2),
    Sketcher.Constraint("Symmetric", 66, 3, 81, 3, -2),
    Sketcher.Constraint("Symmetric", 70, 3, 89, 3, -2),
    Sketcher.Constraint("Symmetric", 7, 2, 12, 2, -2),
    Sketcher.Constraint("Symmetric", 5, 2, 14, 2, -2),
    Sketcher.Constraint("Symmetric", 3, 2, 16, 2, -2),
    Sketcher.Constraint("Symmetric", 1, 2, 18, 2, -2),
    Sketcher.Constraint("Symmetric", 34, 2, 53, 2, -2),
    Sketcher.Constraint("Symmetric", 32, 2, 55, 2, -2),
    Sketcher.Constraint("Symmetric", 58, 2, 61, 1, -2),
    Sketcher.Constraint("Symmetric", 72, 2, 73, 1, -2),
    Sketcher.Constraint("Parallel", 58, 65),
    Sketcher.Constraint("Parallel", 62, 72),
    Sketcher.Constraint("Horizontal", 30, 3, 35, 3),
    Sketcher.Constraint("Horizontal", 35, 3, 37, 3),
    Sketcher.Constraint("Horizontal", 28, 3, 39, 3),
    Sketcher.Constraint("Horizontal", 70, 3, 71, 3),
    Sketcher.Constraint("Horizontal", 23, 2, 26, 1),
    Sketcher.Constraint("Vertical", 11, 3, 21, 3),
    Sketcher.Constraint("Vertical", 9, 3, 23, 3),
    Sketcher.Constraint("Vertical", 36, 3, 70, 3),
    Sketcher.Constraint("Vertical", 0, 2, 3, 2),
    Sketcher.Constraint("Vertical", 2, 2, 5, 2),
    Sketcher.Constraint("Vertical", 18, 2, 33, 2),
    Sketcher.Constraint("Vertical", 24, 2, 68, 1),
    Sketcher.Constraint("Equal", 51, 0),
    Sketcher.Constraint("Equal", 2, 4),
    Sketcher.Constraint("Equal", 4, 6),
    Sketcher.Constraint("Equal", 0, 8),
    Sketcher.Constraint("Radius", 57, Q("0.5 in")),
    Sketcher.Constraint("DistanceY", 2, 1, 2, 2, Q("1 in")),
    Sketcher.Constraint("Radius", 9, Q("0.97 in")),
    Sketcher.Constraint("Radius", 59, Q("0.25 in")),
    Sketcher.Constraint("Diameter", 35, Q("0.125 in")),
    Sketcher.Constraint("DistanceX", 10, 2, 10, 1, Q("5.5 in")),
    Sketcher.Constraint("DistanceY", 9, 3, -1, 1, Q("1 in")),
    Sketcher.Constraint("DistanceX", 35, 3, -1, 1, Q("1 in")),
    Sketcher.Constraint("Radius", 25, Q("0.595 in")),
    Sketcher.Constraint("Radius", 26, Q("0.1875 in")),
    Sketcher.Constraint("Radius", 28, Q("0.125 in")),
    Sketcher.Constraint("DistanceX", 1, 2, 1, 1, Q("0.22 in")),
    Sketcher.Constraint("DistanceX", 40, 1, 40, 2, Q("1.25 in")),
    Sketcher.Constraint("DistanceY", 36, 3, -1, 1, Q("5.5 in")),
    Sketcher.Constraint("DistanceX", 24, 2, 24, 1, Q("1.375 in")),
    Sketcher.Constraint("DistanceY", 32, 1, 32, 2, Q("0.625 in")),
    Sketcher.Constraint("DistanceY", 32, 2, -1, 1, Q("5.75 in")),
    Sketcher.Constraint("DistanceX", 37, 1, -1, 1, Q("0.75 in")),
    Sketcher.Constraint("DistanceX", 31, 2, 31, 1, Q("0.0295 in")),
    Sketcher.Constraint("DistanceY", 59, 3, -1, 1, Q("5.625 in")),
    Sketcher.Constraint("DistanceY", 66, 3, -1, 1, Q("3.6875 in")),
    Sketcher.Constraint("DistanceX", 67, 2, 67, 1, 35.673242),
    Sketcher.Constraint("DistanceY", 69, 1, 69, 2, 21.354889),
    Sketcher.Constraint("Distance", 58, 44.296019),
    Sketcher.Constraint("DistanceX", 76, 1, 76, 2, 70.825894),
    Sketcher.Constraint("DistanceX", 86, 2, 86, 1, 158.823367),
    Sketcher.Constraint("DistanceX", 36, 3, -1, 1, 63.16552),
    Sketcher.Constraint("DistanceY", 73, 3, -1, 1, 76.29556),
])
pad1 = body.newObject("PartDesign::Pad", "Pad")
pad1.Profile = sketch1
pad1.Length = Q("0.125 in")
pad1.Reversed = True

doc.recompute()
